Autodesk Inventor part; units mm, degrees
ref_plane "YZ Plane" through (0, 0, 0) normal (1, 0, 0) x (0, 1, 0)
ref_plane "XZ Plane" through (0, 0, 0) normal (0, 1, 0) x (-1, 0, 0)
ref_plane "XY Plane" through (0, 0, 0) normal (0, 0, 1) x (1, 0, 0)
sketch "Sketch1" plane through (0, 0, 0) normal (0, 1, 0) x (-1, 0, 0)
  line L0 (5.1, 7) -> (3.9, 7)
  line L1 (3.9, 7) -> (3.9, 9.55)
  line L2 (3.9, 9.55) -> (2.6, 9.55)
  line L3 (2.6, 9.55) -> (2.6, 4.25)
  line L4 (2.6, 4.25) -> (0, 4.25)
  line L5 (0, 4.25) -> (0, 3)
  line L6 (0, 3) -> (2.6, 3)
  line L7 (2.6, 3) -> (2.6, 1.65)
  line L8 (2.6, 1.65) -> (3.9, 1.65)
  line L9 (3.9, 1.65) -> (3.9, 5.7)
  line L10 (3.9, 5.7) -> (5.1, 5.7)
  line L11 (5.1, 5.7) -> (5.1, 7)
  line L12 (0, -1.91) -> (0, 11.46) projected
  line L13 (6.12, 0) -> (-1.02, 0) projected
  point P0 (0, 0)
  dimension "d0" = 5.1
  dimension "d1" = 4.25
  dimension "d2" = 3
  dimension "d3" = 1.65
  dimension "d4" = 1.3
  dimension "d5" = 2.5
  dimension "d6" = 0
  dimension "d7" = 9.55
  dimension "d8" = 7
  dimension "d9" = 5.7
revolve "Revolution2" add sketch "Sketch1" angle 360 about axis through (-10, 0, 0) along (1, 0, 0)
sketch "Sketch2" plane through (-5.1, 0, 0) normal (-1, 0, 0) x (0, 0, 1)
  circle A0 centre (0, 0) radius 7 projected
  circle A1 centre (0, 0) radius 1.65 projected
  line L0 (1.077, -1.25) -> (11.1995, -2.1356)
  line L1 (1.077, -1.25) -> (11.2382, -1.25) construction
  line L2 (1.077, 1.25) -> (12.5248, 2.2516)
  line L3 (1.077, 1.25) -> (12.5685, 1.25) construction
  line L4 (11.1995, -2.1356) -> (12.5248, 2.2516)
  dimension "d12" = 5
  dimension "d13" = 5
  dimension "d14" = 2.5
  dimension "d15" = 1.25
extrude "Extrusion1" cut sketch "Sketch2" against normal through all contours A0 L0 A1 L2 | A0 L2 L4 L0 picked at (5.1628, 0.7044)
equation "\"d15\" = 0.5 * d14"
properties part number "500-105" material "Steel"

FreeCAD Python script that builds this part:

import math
import FreeCAD as App
import Part
import Sketcher
Q = App.Units.Quantity

doc = App.newDocument("Part")
body = doc.addObject("PartDesign::Body", "Body")

# Sketch on XZ plane
sketch1 = body.newObject("Sketcher::SketchObject", "Sketch")
sketch1.AttachmentSupport = (doc.getObject("XZ_Plane"), [""])
sketch1.MapMode = "FlatFace"
sketch1.addGeometry([
    Part.LineSegment(App.Vector(-5.1, 5.7, 0), App.Vector(-5.1, 7, 0)),  # 0
    Part.LineSegment(App.Vector(-5.1, 7, 0), App.Vector(-3.9, 7, 0)),  # 1
    Part.LineSegment(App.Vector(-3.9, 7, 0), App.Vector(-3.9, 9.55, 0)),  # 2
    Part.LineSegment(App.Vector(-3.9, 9.55, 0), App.Vector(-2.6, 9.55, 0)),  # 3
    Part.LineSegment(App.Vector(-2.6, 9.55, 0), App.Vector(-2.6, 4.25, 0)),  # 4
    Part.LineSegment(App.Vector(-2.6, 4.25, 0), App.Vector(0, 4.25, 0)),  # 5
    Part.LineSegment(App.Vector(0, 4.25, 0), App.Vector(0, 3, 0)),  # 6
    Part.LineSegment(App.Vector(0, 3, 0), App.Vector(-2.6, 3, 0)),  # 7
    Part.LineSegment(App.Vector(-2.6, 3, 0), App.Vector(-2.6, 1.65, 0)),  # 8
    Part.LineSegment(App.Vector(-2.6, 1.65, 0), App.Vector(-3.9, 1.65, 0)),  # 9
    Part.LineSegment(App.Vector(-3.9, 1.65, 0), App.Vector(-3.9, 5.7, 0)),  # 10
    Part.LineSegment(App.Vector(-3.9, 5.7, 0), App.Vector(-5.1, 5.7, 0)),  # 11
], False)
sketch1.addConstraint([
    Sketcher.Constraint("Coincident", 0, 2, 1, 1),
    Sketcher.Constraint("Coincident", 1, 2, 2, 1),
    Sketcher.Constraint("Coincident", 2, 2, 3, 1),
    Sketcher.Constraint("Coincident", 3, 2, 4, 1),
    Sketcher.Constraint("Coincident", 4, 2, 5, 1),
    Sketcher.Constraint("Coincident", 5, 2, 6, 1),
    Sketcher.Constraint("Coincident", 6, 2, 7, 1),
    Sketcher.Constraint("Coincident", 7, 2, 8, 1),
    Sketcher.Constraint("Coincident", 8, 2, 9, 1),
    Sketcher.Constraint("Coincident", 9, 2, 10, 1),
    Sketcher.Constraint("Coincident", 10, 2, 11, 1),
    Sketcher.Constraint("Coincident", 11, 2, 0, 1),
    Sketcher.Constraint("Vertical", 0),
    Sketcher.Constraint("Horizontal", 1),
    Sketcher.Constraint("Vertical", 2),
    Sketcher.Constraint("Horizontal", 3),
    Sketcher.Constraint("Vertical", 4),
    Sketcher.Constraint("Horizontal", 5),
    Sketcher.Constraint("Vertical", 6),
    Sketcher.Constraint("Horizontal", 7),
    Sketcher.Constraint("Vertical", 8),
    Sketcher.Constraint("Horizontal", 9),
    Sketcher.Constraint("Vertical", 10),
    Sketcher.Constraint("Horizontal", 11),
    Sketcher.Constraint("PointOnObject", 5, 2, -2),
    Sketcher.Constraint("Vertical", 4, 2, 7, 2),
    Sketcher.Constraint("Vertical", 2, 2, 9, 2),
    Sketcher.Constraint("Equal", 9, 0),
    Sketcher.Constraint("DistanceX", 3, 1, 3, 2, Q("1.3 mm")),
    Sketcher.Constraint("DistanceY", -1, 1, 0, 2, Q("7 mm")),
    Sketcher.Constraint("DistanceY", -1, 1, 6, 2, Q("3 mm")),
    Sketcher.Constraint("DistanceX", 0, 2, -1, 1, Q("5.1 mm")),
    Sketcher.Constraint("DistanceX", 0, 2, 3, 2, Q("2.5 mm")),
    Sketcher.Constraint("DistanceY", -1, 1, 2, 2, Q("9.55 mm")),
    Sketcher.Constraint("DistanceY", -1, 1, 4, 2, Q("4.25 mm")),
    Sketcher.Constraint("DistanceY", -1, 1, 8, 2, Q("1.65 mm")),
])
revolution = body.newObject("PartDesign::Revolution", "Revolution")
revolution.Profile = sketch1
revolution.ReferenceAxis = (sketch1, ["H_Axis"])
revolution.Angle = 360

# Sketch on YZ plane
sketch2 = body.newObject("Sketcher::SketchObject", "Sketch001")
sketch2.AttachmentSupport = (doc.getObject("YZ_Plane"), [""])
sketch2.MapMode = "FlatFace"
sketch2.AttachmentOffset = App.Placement(App.Vector(0, 0, -5.1), App.Rotation())
sketch2.addGeometry([
    Part.LineSegment(App.Vector(-1.25, 1.077, 0), App.Vector(-2.1356, 11.1995, 0)),
    Part.LineSegment(App.Vector(-2.1356, 11.1995, 0), App.Vector(2.2516, 12.5248, 0)),
    Part.LineSegment(App.Vector(2.2516, 12.5248, 0), App.Vector(1.25, 1.077, 0)),
    Part.ArcOfCircle(Part.Circle(App.Vector(0, 0, 0), App.Vector(0, 0, 1), 1.65), math.radians(40.748187), math.radians(139.251813)),
], False)
sketch2.addConstraint([
    Sketcher.Constraint("Coincident", 0, 2, 1, 1),
    Sketcher.Constraint("Coincident", 1, 2, 2, 1),
    Sketcher.Constraint("Coincident", 2, 2, 3, 1),
    Sketcher.Constraint("Coincident", 3, 2, 0, 1),
    Sketcher.Constraint("Coincident", 3, 3, -1, 1),
    Sketcher.Constraint("Horizontal", 2, 2, 3, 2),
    Sketcher.Constraint("DistanceX", 3, 2, 2, 2, Q("2.5 mm")),
    Sketcher.Constraint("Angle", 0, Q("95 deg")),
    Sketcher.Constraint("Angle", 2, Q("-95.0002 deg")),
    Sketcher.Constraint("Radius", 3, Q("1.65 mm")),
    Sketcher.Constraint("Distance", 1, Q("4.583 mm")),
    Sketcher.Constraint("Distance", 0, Q("10.1612 mm")),
])
pocket1 = body.newObject("PartDesign::Pocket", "Pocket")
pocket1.Profile = sketch2
pocket1.Type = "ThroughAll"
pocket1.Reversed = True

doc.recompute()
